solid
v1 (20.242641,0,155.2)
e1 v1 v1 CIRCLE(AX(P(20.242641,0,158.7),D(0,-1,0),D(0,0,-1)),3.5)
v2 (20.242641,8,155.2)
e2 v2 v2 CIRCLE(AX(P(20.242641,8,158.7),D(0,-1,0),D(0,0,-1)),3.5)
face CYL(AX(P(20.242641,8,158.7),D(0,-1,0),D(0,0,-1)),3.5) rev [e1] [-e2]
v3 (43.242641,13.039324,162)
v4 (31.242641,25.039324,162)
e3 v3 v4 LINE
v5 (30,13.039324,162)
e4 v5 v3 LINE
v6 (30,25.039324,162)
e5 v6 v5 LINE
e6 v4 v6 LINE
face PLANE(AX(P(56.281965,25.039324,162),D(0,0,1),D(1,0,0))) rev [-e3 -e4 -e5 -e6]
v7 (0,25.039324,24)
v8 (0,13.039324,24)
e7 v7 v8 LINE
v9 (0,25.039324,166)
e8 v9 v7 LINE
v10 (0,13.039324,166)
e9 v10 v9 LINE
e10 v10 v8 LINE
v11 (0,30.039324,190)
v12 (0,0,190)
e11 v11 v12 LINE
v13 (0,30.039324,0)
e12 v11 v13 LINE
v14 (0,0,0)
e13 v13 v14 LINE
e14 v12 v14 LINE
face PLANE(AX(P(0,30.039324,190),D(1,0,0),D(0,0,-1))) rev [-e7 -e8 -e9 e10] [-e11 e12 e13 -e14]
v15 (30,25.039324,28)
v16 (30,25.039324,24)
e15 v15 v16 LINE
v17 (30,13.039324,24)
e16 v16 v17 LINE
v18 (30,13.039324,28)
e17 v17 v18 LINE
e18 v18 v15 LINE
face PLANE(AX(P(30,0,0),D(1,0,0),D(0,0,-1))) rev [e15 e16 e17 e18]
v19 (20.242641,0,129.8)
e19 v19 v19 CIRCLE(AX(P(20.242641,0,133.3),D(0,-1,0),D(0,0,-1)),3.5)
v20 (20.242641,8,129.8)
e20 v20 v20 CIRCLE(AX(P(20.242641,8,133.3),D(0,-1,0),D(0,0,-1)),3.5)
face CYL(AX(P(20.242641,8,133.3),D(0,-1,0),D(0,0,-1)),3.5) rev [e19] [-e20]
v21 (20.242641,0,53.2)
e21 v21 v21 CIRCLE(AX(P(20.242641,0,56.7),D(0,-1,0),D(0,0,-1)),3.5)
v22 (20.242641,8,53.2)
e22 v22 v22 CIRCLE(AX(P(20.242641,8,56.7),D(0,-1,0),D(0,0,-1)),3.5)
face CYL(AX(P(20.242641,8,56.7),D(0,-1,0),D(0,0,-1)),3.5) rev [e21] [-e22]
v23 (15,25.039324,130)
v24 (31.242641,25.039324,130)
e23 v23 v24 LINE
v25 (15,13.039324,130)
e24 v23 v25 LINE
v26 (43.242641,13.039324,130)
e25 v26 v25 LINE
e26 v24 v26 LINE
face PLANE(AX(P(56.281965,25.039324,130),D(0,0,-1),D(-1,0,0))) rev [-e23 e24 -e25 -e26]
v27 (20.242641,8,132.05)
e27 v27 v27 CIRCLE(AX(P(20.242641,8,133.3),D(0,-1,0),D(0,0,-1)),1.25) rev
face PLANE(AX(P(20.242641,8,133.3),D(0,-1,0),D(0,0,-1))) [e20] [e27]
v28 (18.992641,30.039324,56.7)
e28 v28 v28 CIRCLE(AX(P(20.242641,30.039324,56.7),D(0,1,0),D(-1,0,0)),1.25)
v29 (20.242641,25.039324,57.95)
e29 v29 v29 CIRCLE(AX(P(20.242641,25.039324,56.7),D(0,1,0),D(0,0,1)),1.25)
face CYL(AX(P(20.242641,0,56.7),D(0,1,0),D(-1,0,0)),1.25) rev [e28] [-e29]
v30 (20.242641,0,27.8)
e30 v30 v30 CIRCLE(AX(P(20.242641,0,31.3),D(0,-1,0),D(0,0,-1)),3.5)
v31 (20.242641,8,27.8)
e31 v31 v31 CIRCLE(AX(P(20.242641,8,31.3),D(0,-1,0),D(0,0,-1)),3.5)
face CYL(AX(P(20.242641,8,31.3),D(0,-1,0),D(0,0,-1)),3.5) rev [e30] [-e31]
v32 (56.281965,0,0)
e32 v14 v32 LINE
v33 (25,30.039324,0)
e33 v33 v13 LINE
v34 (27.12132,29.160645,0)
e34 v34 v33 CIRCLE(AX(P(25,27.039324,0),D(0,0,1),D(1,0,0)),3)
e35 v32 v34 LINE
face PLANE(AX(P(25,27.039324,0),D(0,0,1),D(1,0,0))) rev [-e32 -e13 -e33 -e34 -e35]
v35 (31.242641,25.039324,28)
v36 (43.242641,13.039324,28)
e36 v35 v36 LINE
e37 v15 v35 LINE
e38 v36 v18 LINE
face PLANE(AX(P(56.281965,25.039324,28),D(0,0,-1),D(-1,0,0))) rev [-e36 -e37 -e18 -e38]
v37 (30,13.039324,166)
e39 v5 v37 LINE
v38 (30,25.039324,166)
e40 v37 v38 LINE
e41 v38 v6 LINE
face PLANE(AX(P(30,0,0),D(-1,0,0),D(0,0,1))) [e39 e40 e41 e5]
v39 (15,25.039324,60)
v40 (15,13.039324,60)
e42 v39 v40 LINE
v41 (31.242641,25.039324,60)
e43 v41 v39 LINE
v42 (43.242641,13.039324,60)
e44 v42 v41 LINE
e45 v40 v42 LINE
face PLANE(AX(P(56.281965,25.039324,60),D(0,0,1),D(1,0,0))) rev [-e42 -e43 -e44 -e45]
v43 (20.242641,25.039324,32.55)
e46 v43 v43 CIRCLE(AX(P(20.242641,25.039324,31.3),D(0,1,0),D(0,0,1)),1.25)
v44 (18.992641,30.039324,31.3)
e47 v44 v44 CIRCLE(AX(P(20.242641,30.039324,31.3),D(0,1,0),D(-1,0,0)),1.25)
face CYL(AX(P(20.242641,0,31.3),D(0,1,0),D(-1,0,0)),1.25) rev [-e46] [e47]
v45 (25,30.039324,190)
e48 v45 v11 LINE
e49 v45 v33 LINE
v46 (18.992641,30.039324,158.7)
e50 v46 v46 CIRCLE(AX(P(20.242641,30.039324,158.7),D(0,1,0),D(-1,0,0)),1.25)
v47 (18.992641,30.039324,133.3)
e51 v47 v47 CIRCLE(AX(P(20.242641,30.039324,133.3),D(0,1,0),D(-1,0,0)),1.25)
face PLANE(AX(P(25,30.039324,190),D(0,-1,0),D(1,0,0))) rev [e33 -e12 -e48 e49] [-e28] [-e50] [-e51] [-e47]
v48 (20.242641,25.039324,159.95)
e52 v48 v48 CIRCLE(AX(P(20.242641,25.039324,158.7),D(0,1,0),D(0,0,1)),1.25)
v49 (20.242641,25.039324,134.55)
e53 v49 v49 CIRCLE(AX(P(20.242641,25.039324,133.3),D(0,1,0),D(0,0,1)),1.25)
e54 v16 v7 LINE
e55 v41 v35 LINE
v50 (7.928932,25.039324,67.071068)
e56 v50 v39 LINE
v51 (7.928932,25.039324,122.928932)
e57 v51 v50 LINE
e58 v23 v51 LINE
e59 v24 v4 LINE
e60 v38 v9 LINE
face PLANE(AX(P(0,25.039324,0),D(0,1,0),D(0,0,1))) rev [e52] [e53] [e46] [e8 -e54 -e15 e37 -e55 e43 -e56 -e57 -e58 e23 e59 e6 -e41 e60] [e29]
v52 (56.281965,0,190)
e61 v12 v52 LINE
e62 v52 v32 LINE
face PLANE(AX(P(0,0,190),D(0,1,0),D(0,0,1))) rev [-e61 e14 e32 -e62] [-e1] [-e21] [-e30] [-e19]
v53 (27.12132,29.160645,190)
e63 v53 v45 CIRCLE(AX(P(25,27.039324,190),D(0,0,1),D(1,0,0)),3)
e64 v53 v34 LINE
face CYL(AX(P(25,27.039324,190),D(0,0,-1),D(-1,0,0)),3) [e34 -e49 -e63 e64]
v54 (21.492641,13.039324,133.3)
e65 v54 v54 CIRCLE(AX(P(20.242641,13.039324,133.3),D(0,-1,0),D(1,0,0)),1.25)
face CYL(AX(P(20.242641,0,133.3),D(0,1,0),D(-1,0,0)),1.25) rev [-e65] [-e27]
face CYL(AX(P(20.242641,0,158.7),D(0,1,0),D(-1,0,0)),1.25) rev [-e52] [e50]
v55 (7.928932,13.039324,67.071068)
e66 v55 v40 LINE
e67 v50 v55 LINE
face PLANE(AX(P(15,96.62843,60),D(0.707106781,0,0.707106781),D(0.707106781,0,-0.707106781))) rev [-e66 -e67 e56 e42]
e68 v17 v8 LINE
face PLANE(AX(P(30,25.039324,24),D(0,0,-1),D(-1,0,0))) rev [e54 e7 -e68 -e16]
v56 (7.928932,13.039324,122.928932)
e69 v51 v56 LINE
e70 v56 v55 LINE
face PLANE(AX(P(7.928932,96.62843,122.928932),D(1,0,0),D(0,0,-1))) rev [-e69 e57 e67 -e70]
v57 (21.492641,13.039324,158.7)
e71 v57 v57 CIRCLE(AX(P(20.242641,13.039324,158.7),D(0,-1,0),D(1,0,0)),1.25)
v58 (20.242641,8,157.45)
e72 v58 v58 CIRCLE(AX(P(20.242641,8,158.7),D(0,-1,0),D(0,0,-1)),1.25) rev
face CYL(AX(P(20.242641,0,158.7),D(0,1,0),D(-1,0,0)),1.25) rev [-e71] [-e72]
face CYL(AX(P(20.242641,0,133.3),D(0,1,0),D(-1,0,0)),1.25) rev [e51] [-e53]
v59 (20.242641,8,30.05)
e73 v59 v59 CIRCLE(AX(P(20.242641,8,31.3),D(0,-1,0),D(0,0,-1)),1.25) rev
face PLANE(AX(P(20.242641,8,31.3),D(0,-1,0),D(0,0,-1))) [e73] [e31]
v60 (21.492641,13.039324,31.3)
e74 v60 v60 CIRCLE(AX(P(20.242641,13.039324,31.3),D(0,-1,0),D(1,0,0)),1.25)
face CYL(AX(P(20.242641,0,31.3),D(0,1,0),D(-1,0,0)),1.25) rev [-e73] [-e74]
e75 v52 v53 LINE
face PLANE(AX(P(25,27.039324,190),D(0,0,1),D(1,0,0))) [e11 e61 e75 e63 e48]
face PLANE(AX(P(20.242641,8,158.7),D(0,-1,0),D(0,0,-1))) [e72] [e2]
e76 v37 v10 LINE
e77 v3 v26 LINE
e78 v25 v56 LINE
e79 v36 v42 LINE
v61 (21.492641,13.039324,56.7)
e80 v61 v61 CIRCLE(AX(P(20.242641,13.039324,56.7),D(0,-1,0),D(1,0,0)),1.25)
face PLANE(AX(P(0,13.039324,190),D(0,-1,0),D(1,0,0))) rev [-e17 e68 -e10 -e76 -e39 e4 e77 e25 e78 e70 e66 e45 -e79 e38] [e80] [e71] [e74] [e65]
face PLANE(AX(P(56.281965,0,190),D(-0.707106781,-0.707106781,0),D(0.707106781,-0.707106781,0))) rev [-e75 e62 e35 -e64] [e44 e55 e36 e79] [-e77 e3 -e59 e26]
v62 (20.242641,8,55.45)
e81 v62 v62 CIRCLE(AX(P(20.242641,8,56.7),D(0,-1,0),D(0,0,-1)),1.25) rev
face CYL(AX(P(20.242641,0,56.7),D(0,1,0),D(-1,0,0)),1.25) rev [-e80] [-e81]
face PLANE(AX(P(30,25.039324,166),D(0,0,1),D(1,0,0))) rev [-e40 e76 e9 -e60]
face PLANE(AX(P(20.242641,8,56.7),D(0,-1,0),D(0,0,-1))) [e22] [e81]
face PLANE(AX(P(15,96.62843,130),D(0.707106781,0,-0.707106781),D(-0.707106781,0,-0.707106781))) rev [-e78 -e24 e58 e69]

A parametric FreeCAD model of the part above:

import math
import FreeCAD as App
import Part
import Sketcher
from FreeCAD import Vector
Q = App.Units.Quantity

doc = App.newDocument("Part")
body = doc.addObject("PartDesign::Body", "Body")

# Sketch on XY plane
sketch1 = body.newObject("Sketcher::SketchObject", "Sketch")
sketch1.AttachmentSupport = (doc.getObject("XY_Plane"), [""])
sketch1.MapMode = "FlatFace"
sketch1.addGeometry([
    Part.LineSegment(Vector(56.3, 0, 0), Vector(27.1, 29.2, 0)),  # 0
    Part.ArcOfCircle(Part.Circle(Vector(25, 27, 0), Vector(0, 0, 1), 3), math.radians(45), math.radians(90)),  # 1
    Part.LineSegment(Vector(25, 30, 0), Vector(0, 30, 0)),  # 2
    Part.LineSegment(Vector(0, 30, 0), Vector(0, 0, 0)),  # 3
    Part.LineSegment(Vector(0, 0, 0), Vector(56.3, 0, 0)),  # 4
], False)
sketch1.addConstraint([
    Sketcher.Constraint("Tangent", 0, 2, 1, 1),
    Sketcher.Constraint("Tangent", 1, 2, 2, 1),
    Sketcher.Constraint("Coincident", 2, 2, 3, 1),
    Sketcher.Constraint("Coincident", 3, 2, 4, 1),
    Sketcher.Constraint("Coincident", 4, 2, 0, 1),
    Sketcher.Constraint("Horizontal", 2),
    Sketcher.Constraint("Vertical", 3),
    Sketcher.Constraint("Horizontal", 4),
    Sketcher.Constraint("Coincident", 3, 2, -1, 1),
    Sketcher.Constraint("Radius", 1, Q("3 mm")),
    Sketcher.Constraint("DistanceX", 2, 2, 2, 1, Q("25 mm")),
    Sketcher.Constraint("Angle", 0, Q("135 deg")),
    Sketcher.Constraint("Distance", 0, Q("41.239379 mm")),
])
pad1 = body.newObject("PartDesign::Pad", "Pad")
pad1.Profile = sketch1
pad1.Length = 190

# Sketch on XZ plane
sketch2 = body.newObject("Sketcher::SketchObject", "Sketch001")
sketch2.AttachmentSupport = (doc.getObject("XZ_Plane"), [""])
sketch2.MapMode = "FlatFace"
sketch2.addGeometry([
    Part.LineSegment(Vector(0, 162, 0), Vector(0, 130, 0)),  # 0
    Part.LineSegment(Vector(0, 130, 0), Vector(56, 130, 0)),  # 1
    Part.LineSegment(Vector(56, 130, 0), Vector(56, 162, 0)),  # 2
    Part.LineSegment(Vector(56, 162, 0), Vector(0, 162, 0)),  # 3
    Part.LineSegment(Vector(0, 60, 0), Vector(0, 28, 0)),  # 4
    Part.LineSegment(Vector(0, 28, 0), Vector(56, 28, 0)),  # 5
    Part.LineSegment(Vector(56, 28, 0), Vector(56, 60, 0)),  # 6
    Part.LineSegment(Vector(56, 60, 0), Vector(0, 60, 0)),  # 7
], False)
sketch2.addConstraint([
    Sketcher.Constraint("Coincident", 0, 2, 1, 1),
    Sketcher.Constraint("Coincident", 1, 2, 2, 1),
    Sketcher.Constraint("Coincident", 2, 2, 3, 1),
    Sketcher.Constraint("Coincident", 3, 2, 0, 1),
    Sketcher.Constraint("Coincident", 4, 2, 5, 1),
    Sketcher.Constraint("Coincident", 5, 2, 6, 1),
    Sketcher.Constraint("Coincident", 6, 2, 7, 1),
    Sketcher.Constraint("Coincident", 7, 2, 4, 1),
    Sketcher.Constraint("Vertical", 0),
    Sketcher.Constraint("Horizontal", 1),
    Sketcher.Constraint("Vertical", 2),
    Sketcher.Constraint("Horizontal", 3),
    Sketcher.Constraint("Vertical", 4),
    Sketcher.Constraint("Horizontal", 5),
    Sketcher.Constraint("Vertical", 6),
    Sketcher.Constraint("Horizontal", 7),
    Sketcher.Constraint("PointOnObject", 0, 2, -2),
    Sketcher.Constraint("PointOnObject", 4, 2, -2),
    Sketcher.Constraint("Vertical", 2, 2, 5, 2),
    Sketcher.Constraint("Equal", 2, 4),
    Sketcher.Constraint("DistanceY", 0, 2, 0, 1, Q("32 mm")),
    Sketcher.Constraint("DistanceY", -1, 1, 0, 2, Q("130 mm")),
    Sketcher.Constraint("DistanceY", -1, 1, 4, 2, Q("28 mm")),
    Sketcher.Constraint("DistanceX", 1, 1, 1, 2, Q("56.281965 mm")),
])
pocket1 = body.newObject("PartDesign::Pocket", "Pocket")
pocket1.Profile = sketch2
pocket1.Length = 25.039324

# Sketch on XZ plane
sketch3 = body.newObject("Sketcher::SketchObject", "Sketch002")
sketch3.AttachmentSupport = (doc.getObject("XZ_Plane"), [""])
sketch3.MapMode = "FlatFace"
sketch3.addGeometry([
    Part.LineSegment(Vector(15, 130, 0), Vector(0, 130, 0)),  # 0
    Part.LineSegment(Vector(0, 130, 0), Vector(0, 60, 0)),  # 1
    Part.LineSegment(Vector(0, 60, 0), Vector(15, 60, 0)),  # 2
    Part.LineSegment(Vector(15, 60, 0), Vector(8, 67, 0)),  # 3
    Part.LineSegment(Vector(8, 67, 0), Vector(8, 123, 0)),  # 4
    Part.LineSegment(Vector(8, 123, 0), Vector(15, 130, 0)),  # 5
], False)
sketch3.addConstraint([
    Sketcher.Constraint("Coincident", 0, 2, 1, 1),
    Sketcher.Constraint("Coincident", 1, 2, 2, 1),
    Sketcher.Constraint("Coincident", 2, 2, 3, 1),
    Sketcher.Constraint("Coincident", 3, 2, 4, 1),
    Sketcher.Constraint("Coincident", 4, 2, 5, 1),
    Sketcher.Constraint("Coincident", 5, 2, 0, 1),
    Sketcher.Constraint("Horizontal", 0),
    Sketcher.Constraint("Vertical", 1),
    Sketcher.Constraint("Horizontal", 2),
    Sketcher.Constraint("Vertical", 4),
    Sketcher.Constraint("PointOnObject", 0, 2, -2),
    Sketcher.Constraint("Perpendicular", 3, 5),
    Sketcher.Constraint("Vertical", 2, 2, 5, 2),
    Sketcher.Constraint("Equal", 3, 5),
    Sketcher.Constraint("DistanceX", 0, 2, 0, 1, Q("15 mm")),
    Sketcher.Constraint("DistanceY", 1, 2, 1, 1, Q("70 mm")),
    Sketcher.Constraint("Distance", 3, Q("10 mm")),
    Sketcher.Constraint("DistanceY", -1, 1, 0, 2, Q("130 mm")),
])
pocket2 = body.newObject("PartDesign::Pocket", "Pocket001")
pocket2.Profile = sketch3
pocket2.Length = 25.039324

# Sketch on XY plane
sketch4 = body.newObject("Sketcher::SketchObject", "Sketch003")
sketch4.AttachmentSupport = (doc.getObject("XY_Plane"), [""])
sketch4.MapMode = "FlatFace"
sketch4.AttachmentOffset = App.Placement(Vector(0, 0, 130), App.Rotation())
sketch4.addGeometry([
    Part.LineSegment(Vector(0, 0, 0), Vector(56, 0, 0)),
    Part.LineSegment(Vector(56, 0, 0), Vector(43, 13, 0)),
    Part.LineSegment(Vector(43, 13, 0), Vector(0, 13, 0)),
    Part.LineSegment(Vector(0, 13, 0), Vector(0, 0, 0)),
], False)
sketch4.addConstraint([
    Sketcher.Constraint("Coincident", 0, 2, 1, 1),
    Sketcher.Constraint("Coincident", 1, 2, 2, 1),
    Sketcher.Constraint("Coincident", 2, 2, 3, 1),
    Sketcher.Constraint("Coincident", 3, 2, 0, 1),
    Sketcher.Constraint("Horizontal", 0),
    Sketcher.Constraint("Horizontal", 2),
    Sketcher.Constraint("Vertical", 3),
    Sketcher.Constraint("Coincident", 3, 2, -1, 1),
    Sketcher.Constraint("Angle", 1, Q("135 deg")),
    Sketcher.Constraint("DistanceX", 2, 2, 2, 1, Q("43.242641 mm")),
    Sketcher.Constraint("Distance", 1, Q("18.440389 mm")),
])
pad2 = body.newObject("PartDesign::Pad", "Pad001")
pad2.Profile = sketch4
pad2.Type = "UpToFirst"

# Sketch on XY plane
sketch5 = body.newObject("Sketcher::SketchObject", "Sketch004")
sketch5.AttachmentSupport = (doc.getObject("XY_Plane"), [""])
sketch5.MapMode = "FlatFace"
sketch5.AttachmentOffset = App.Placement(Vector(0, 0, 130), App.Rotation())
sketch5.addGeometry([
    Part.LineSegment(Vector(0, 0, 0), Vector(0, 13, 0)),
    Part.LineSegment(Vector(0, 13, 0), Vector(43, 13, 0)),
    Part.LineSegment(Vector(43, 13, 0), Vector(56, 0, 0)),
    Part.LineSegment(Vector(56, 0, 0), Vector(0, 0, 0)),
], False)
sketch5.addConstraint([
    Sketcher.Constraint("Coincident", 0, 2, 1, 1),
    Sketcher.Constraint("Coincident", 1, 2, 2, 1),
    Sketcher.Constraint("Coincident", 2, 2, 3, 1),
    Sketcher.Constraint("Coincident", 3, 2, 0, 1),
    Sketcher.Constraint("Vertical", 0),
    Sketcher.Constraint("Horizontal", 1),
    Sketcher.Constraint("Horizontal", 3),
    Sketcher.Constraint("Coincident", 3, 2, -1, 1),
    Sketcher.Constraint("Angle", 2, Q("-45 deg")),
    Sketcher.Constraint("DistanceX", 1, 1, 1, 2, Q("43.242641 mm")),
    Sketcher.Constraint("Distance", 2, Q("18.440389 mm")),
])
pad3 = body.newObject("PartDesign::Pad", "Pad002")
pad3.Profile = sketch5
pad3.Length = 102
pad3.Reversed = True

# Sketch on YZ plane
sketch6 = body.newObject("Sketcher::SketchObject", "Sketch005")
sketch6.AttachmentSupport = (doc.getObject("YZ_Plane"), [""])
sketch6.MapMode = "FlatFace"
sketch6.addGeometry([
    Part.LineSegment(Vector(25, 24, 0), Vector(13, 24, 0)),  # 0
    Part.LineSegment(Vector(13, 24, 0), Vector(13, 28, 0)),  # 1
    Part.LineSegment(Vector(13, 28, 0), Vector(25, 28, 0)),  # 2
    Part.LineSegment(Vector(25, 28, 0), Vector(25, 24, 0)),  # 3
    Part.LineSegment(Vector(25, 162, 0), Vector(13, 162, 0)),  # 4
    Part.LineSegment(Vector(13, 162, 0), Vector(13, 166, 0)),  # 5
    Part.LineSegment(Vector(13, 166, 0), Vector(25, 166, 0)),  # 6
    Part.LineSegment(Vector(25, 166, 0), Vector(25, 162, 0)),  # 7
], False)
sketch6.addConstraint([
    Sketcher.Constraint("Coincident", 0, 2, 1, 1),
    Sketcher.Constraint("Coincident", 1, 2, 2, 1),
    Sketcher.Constraint("Coincident", 2, 2, 3, 1),
    Sketcher.Constraint("Coincident", 3, 2, 0, 1),
    Sketcher.Constraint("Coincident", 4, 2, 5, 1),
    Sketcher.Constraint("Coincident", 5, 2, 6, 1),
    Sketcher.Constraint("Coincident", 6, 2, 7, 1),
    Sketcher.Constraint("Coincident", 7, 2, 4, 1),
    Sketcher.Constraint("Horizontal", 0),
    Sketcher.Constraint("Vertical", 1),
    Sketcher.Constraint("Horizontal", 2),
    Sketcher.Constraint("Vertical", 3),
    Sketcher.Constraint("Horizontal", 4),
    Sketcher.Constraint("Vertical", 5),
    Sketcher.Constraint("Horizontal", 6),
    Sketcher.Constraint("Vertical", 7),
    Sketcher.Constraint("Vertical", 1, 2, 4, 2),
    Sketcher.Constraint("Vertical", 3, 2, 6, 2),
    Sketcher.Constraint("Equal", 3, 5),
    Sketcher.Constraint("DistanceX", 0, 2, 0, 1, Q("12 mm")),
    Sketcher.Constraint("DistanceY", 1, 1, 1, 2, Q("4 mm")),
    Sketcher.Constraint("DistanceY", -1, 1, 0, 2, Q("24 mm")),
    Sketcher.Constraint("DistanceY", -1, 1, 4, 2, Q("162 mm")),
    Sketcher.Constraint("DistanceX", -1, 1, 0, 2, Q("13.039324 mm")),
])
pocket3 = body.newObject("PartDesign::Pocket", "Pocket002")
pocket3.Profile = sketch6
pocket3.Length = 30
pocket3.Reversed = True

# Sketch on XZ plane
sketch7 = body.newObject("Sketcher::SketchObject", "Sketch006")
sketch7.AttachmentSupport = (doc.getObject("XZ_Plane"), [""])
sketch7.MapMode = "FlatFace"
sketch7.AttachmentOffset = App.Placement(Vector(0, 0, -13.039324), App.Rotation())
sketch7.addGeometry([
    Part.Circle(Vector(20.2, 158.7, 0), Vector(0, 0, 1), 1.2),
    Part.Circle(Vector(20.2, 133.3, 0), Vector(0, 0, 1), 1.2),
    Part.Circle(Vector(20.2, 31.3, 0), Vector(0, 0, 1), 1.2),
    Part.Circle(Vector(20.2, 56.7, 0), Vector(0, 0, 1), 1.2),
], False)
sketch7.addConstraint([
    Sketcher.Constraint("Equal", 0, 1),
    Sketcher.Constraint("Equal", 1, 2),
    Sketcher.Constraint("Equal", 2, 3),
    Sketcher.Constraint("Vertical", 0, 3, 1, 3),
    Sketcher.Constraint("Vertical", 1, 3, 2, 3),
    Sketcher.Constraint("Vertical", 2, 3, 3, 3),
    Sketcher.Constraint("Diameter", 0, Q("2.5 mm")),
    Sketcher.Constraint("DistanceY", 2, 3, 1, 3, Q("102 mm")),
    Sketcher.Constraint("DistanceY", 3, 3, 0, 3, Q("102 mm")),
    Sketcher.Constraint("DistanceY", -1, 1, 0, 3, Q("158.7 mm")),
    Sketcher.Constraint("DistanceY", -1, 1, 1, 3, Q("133.3 mm")),
    Sketcher.Constraint("DistanceX", -1, 1, 0, 3, Q("20.242641 mm")),
])
pocket4 = body.newObject("PartDesign::Pocket", "Pocket003")
pocket4.Profile = sketch7
pocket4.Type = "ThroughAll"
pocket4.Midplane = True

# Sketch on XZ plane
sketch8 = body.newObject("Sketcher::SketchObject", "Sketch007")
sketch8.AttachmentSupport = (doc.getObject("XZ_Plane"), [""])
sketch8.MapMode = "FlatFace"
sketch8.addGeometry([
    Part.Circle(Vector(20.2, 158.7, 0), Vector(0, 0, 1), 3.5),
    Part.Circle(Vector(20.2, 133.3, 0), Vector(0, 0, 1), 3.5),
    Part.Circle(Vector(20.2, 56.7, 0), Vector(0, 0, 1), 3.5),
    Part.Circle(Vector(20.2, 31.3, 0), Vector(0, 0, 1), 3.5),
], False)
sketch8.addConstraint([
    Sketcher.Constraint("Equal", 0, 1),
    Sketcher.Constraint("Equal", 1, 2),
    Sketcher.Constraint("Equal", 2, 3),
    Sketcher.Constraint("Vertical", 0, 3, 1, 3),
    Sketcher.Constraint("Vertical", 1, 3, 2, 3),
    Sketcher.Constraint("Vertical", 2, 3, 3, 3),
    Sketcher.Constraint("Diameter", 0, Q("7 mm")),
    Sketcher.Constraint("DistanceY", 2, 3, 0, 3, Q("102 mm")),
    Sketcher.Constraint("DistanceY", 3, 3, 1, 3, Q("102 mm")),
    Sketcher.Constraint("DistanceY", -1, 1, 0, 3, Q("158.7 mm")),
    Sketcher.Constraint("DistanceY", -1, 1, 1, 3, Q("133.3 mm")),
    Sketcher.Constraint("DistanceX", -1, 1, 0, 3, Q("20.242641 mm")),
])
pocket5 = body.newObject("PartDesign::Pocket", "Pocket004")
pocket5.Profile = sketch8
pocket5.Length = 8

doc.recompute()
